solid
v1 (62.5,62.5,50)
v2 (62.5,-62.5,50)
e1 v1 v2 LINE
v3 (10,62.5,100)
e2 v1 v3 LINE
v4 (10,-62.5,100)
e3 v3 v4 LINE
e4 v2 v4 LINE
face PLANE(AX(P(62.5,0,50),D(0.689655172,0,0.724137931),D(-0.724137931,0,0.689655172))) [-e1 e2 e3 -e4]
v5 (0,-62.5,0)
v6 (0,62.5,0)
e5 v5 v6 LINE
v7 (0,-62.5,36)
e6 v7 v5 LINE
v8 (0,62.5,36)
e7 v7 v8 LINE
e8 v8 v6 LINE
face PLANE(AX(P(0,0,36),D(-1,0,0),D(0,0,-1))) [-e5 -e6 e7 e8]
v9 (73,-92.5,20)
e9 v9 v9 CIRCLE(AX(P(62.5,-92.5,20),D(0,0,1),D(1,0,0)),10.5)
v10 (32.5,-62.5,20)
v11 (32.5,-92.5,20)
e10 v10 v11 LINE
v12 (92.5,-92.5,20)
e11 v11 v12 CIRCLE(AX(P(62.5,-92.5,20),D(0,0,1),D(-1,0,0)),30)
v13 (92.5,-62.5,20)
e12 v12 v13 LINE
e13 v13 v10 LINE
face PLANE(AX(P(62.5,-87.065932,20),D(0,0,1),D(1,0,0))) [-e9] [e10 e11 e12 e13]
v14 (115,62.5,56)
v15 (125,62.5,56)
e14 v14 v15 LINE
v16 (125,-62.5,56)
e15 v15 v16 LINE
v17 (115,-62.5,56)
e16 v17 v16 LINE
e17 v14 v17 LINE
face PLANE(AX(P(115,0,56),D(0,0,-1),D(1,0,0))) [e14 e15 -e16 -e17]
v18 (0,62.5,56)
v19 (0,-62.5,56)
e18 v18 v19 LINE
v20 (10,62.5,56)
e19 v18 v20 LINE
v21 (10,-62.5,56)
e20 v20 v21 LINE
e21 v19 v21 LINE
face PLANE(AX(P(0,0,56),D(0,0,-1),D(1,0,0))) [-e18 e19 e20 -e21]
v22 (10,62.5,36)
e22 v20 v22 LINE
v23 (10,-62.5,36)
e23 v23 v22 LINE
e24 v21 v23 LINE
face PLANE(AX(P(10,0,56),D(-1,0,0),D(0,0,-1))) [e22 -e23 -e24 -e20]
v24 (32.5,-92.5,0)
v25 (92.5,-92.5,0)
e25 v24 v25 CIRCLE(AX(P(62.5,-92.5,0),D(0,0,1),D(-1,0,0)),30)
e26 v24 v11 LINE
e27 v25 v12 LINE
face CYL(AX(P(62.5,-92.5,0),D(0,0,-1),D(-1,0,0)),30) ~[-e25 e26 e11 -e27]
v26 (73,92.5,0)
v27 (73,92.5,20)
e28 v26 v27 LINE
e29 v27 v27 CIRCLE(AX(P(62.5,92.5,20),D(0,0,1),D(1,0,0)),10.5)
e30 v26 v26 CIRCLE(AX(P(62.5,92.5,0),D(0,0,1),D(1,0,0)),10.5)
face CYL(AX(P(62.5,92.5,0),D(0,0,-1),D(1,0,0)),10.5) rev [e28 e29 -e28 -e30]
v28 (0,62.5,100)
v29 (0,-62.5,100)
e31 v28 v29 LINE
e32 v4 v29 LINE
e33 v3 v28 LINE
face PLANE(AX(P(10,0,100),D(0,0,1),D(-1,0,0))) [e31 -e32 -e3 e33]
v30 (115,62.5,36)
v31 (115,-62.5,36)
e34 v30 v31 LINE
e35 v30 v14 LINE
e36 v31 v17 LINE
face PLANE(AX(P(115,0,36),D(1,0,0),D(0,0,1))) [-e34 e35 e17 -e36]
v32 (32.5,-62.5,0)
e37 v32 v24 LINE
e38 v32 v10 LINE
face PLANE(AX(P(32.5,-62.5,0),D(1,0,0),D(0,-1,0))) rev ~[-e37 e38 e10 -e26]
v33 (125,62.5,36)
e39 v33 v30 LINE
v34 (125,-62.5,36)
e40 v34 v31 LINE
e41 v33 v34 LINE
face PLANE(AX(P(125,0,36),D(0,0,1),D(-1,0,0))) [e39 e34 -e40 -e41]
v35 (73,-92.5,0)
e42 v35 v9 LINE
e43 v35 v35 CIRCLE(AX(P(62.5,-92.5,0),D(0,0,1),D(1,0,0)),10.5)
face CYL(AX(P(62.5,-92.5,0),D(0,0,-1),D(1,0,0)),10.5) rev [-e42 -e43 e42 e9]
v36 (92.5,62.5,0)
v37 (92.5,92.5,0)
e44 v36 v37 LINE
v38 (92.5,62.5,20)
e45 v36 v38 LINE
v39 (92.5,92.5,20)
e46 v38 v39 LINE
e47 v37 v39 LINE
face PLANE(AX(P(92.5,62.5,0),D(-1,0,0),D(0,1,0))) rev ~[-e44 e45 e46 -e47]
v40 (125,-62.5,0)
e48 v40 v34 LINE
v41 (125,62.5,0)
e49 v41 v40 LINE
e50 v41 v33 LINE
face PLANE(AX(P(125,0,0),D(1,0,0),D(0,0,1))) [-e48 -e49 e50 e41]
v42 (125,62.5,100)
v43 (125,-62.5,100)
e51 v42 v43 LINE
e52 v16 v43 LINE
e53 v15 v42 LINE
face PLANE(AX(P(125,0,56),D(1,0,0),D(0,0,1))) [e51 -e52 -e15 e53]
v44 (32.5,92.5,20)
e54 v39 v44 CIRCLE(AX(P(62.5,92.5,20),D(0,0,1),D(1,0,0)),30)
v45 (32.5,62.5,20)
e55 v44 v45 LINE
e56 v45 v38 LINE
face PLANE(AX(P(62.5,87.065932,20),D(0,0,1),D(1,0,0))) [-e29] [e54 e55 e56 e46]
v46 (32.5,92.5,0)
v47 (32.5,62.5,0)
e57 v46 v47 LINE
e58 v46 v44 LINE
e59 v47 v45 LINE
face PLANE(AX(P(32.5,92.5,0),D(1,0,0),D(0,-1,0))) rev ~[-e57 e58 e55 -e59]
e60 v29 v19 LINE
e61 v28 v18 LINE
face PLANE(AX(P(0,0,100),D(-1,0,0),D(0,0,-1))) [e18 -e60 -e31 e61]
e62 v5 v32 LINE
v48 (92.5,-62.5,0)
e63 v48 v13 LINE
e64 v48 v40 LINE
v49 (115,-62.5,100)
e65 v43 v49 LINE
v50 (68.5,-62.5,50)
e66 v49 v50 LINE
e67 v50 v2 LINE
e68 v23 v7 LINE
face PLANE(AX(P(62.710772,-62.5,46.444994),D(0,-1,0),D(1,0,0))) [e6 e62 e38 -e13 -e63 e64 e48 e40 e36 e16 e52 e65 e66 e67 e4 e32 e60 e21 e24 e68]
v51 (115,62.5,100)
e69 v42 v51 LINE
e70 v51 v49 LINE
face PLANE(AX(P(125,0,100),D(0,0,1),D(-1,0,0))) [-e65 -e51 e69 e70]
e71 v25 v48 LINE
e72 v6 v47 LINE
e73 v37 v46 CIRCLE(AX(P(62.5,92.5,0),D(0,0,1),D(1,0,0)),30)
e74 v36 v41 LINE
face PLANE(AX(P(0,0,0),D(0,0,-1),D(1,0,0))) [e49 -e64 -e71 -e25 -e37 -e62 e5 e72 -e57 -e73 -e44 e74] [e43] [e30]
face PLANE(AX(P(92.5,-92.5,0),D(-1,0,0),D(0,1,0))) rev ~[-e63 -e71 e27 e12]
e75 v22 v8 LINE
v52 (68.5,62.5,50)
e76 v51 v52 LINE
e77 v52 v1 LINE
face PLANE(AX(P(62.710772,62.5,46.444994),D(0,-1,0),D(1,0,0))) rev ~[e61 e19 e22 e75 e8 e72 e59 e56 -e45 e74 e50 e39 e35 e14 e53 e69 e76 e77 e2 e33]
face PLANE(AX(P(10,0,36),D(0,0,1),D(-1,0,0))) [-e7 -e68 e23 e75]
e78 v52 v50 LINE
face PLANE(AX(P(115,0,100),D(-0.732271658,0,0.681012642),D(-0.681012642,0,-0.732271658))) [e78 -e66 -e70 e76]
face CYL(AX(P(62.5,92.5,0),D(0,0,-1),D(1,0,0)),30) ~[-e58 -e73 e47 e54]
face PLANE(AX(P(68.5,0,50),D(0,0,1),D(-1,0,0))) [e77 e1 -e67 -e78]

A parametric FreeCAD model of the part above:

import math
import FreeCAD as App
import Part
import Sketcher
from FreeCAD import Vector
Q = App.Units.Quantity

doc = App.newDocument("Part")
body = doc.addObject("PartDesign::Body", "Body")

sketch1 = body.newObject("Sketcher::SketchObject", "Sketch")
sketch1.AttachmentSupport = (doc.getObject("XZ_Plane"), [""])
sketch1.MapMode = "FlatFace"
sketch1.addGeometry([
    Part.LineSegment(Vector(0, 0, 0), Vector(125, 0, 0)),
    Part.LineSegment(Vector(125, 0, 0), Vector(125, 36, 0)),
    Part.LineSegment(Vector(125, 36, 0), Vector(115, 36, 0)),
    Part.LineSegment(Vector(115, 36, 0), Vector(115, 56, 0)),
    Part.LineSegment(Vector(115, 56, 0), Vector(125, 56, 0)),
    Part.LineSegment(Vector(125, 56, 0), Vector(125, 100, 0)),
    Part.LineSegment(Vector(125, 100, 0), Vector(115, 100, 0)),
    Part.LineSegment(Vector(115, 100, 0), Vector(68, 50, 0)),
    Part.LineSegment(Vector(68, 50, 0), Vector(62, 50, 0)),
    Part.LineSegment(Vector(62, 50, 0), Vector(10, 100, 0)),
    Part.LineSegment(Vector(10, 100, 0), Vector(0, 100, 0)),
    Part.LineSegment(Vector(0, 100, 0), Vector(0, 56, 0)),
    Part.LineSegment(Vector(0, 56, 0), Vector(10, 56, 0)),
    Part.LineSegment(Vector(10, 56, 0), Vector(10, 36, 0)),
    Part.LineSegment(Vector(10, 36, 0), Vector(0, 36, 0)),
    Part.LineSegment(Vector(0, 36, 0), Vector(0, 0, 0)),
], False)
sketch1.addConstraint([
    Sketcher.Constraint("Coincident", 0, 2, 1, 1),
    Sketcher.Constraint("Coincident", 1, 2, 2, 1),
    Sketcher.Constraint("Coincident", 2, 2, 3, 1),
    Sketcher.Constraint("Coincident", 3, 2, 4, 1),
    Sketcher.Constraint("Coincident", 4, 2, 5, 1),
    Sketcher.Constraint("Coincident", 5, 2, 6, 1),
    Sketcher.Constraint("Coincident", 6, 2, 7, 1),
    Sketcher.Constraint("Coincident", 7, 2, 8, 1),
    Sketcher.Constraint("Coincident", 8, 2, 9, 1),
    Sketcher.Constraint("Coincident", 9, 2, 10, 1),
    Sketcher.Constraint("Coincident", 10, 2, 11, 1),
    Sketcher.Constraint("Coincident", 11, 2, 12, 1),
    Sketcher.Constraint("Coincident", 12, 2, 13, 1),
    Sketcher.Constraint("Coincident", 13, 2, 14, 1),
    Sketcher.Constraint("Coincident", 14, 2, 15, 1),
    Sketcher.Constraint("Coincident", 15, 2, 0, 1),
    Sketcher.Constraint("Horizontal", 0),
    Sketcher.Constraint("Vertical", 1),
    Sketcher.Constraint("Horizontal", 2),
    Sketcher.Constraint("Vertical", 3),
    Sketcher.Constraint("Horizontal", 4),
    Sketcher.Constraint("Vertical", 5),
    Sketcher.Constraint("Horizontal", 6),
    Sketcher.Constraint("Horizontal", 8),
    Sketcher.Constraint("Horizontal", 10),
    Sketcher.Constraint("Vertical", 11),
    Sketcher.Constraint("Horizontal", 12),
    Sketcher.Constraint("Vertical", 13),
    Sketcher.Constraint("Horizontal", 14),
    Sketcher.Constraint("Vertical", 15),
    Sketcher.Constraint("Coincident", 15, 2, -1, 1),
    Sketcher.Constraint("PointOnObject", 10, 2, -2),
    Sketcher.Constraint("Horizontal", 6, 2, 9, 2),
    Sketcher.Constraint("Horizontal", 4, 2, 11, 2),
    Sketcher.Constraint("Horizontal", 2, 2, 13, 2),
    Sketcher.Constraint("Vertical", 1, 2, 4, 2),
    Sketcher.Constraint("Vertical", 3, 2, 6, 2),
    Sketcher.Constraint("Vertical", 9, 2, 12, 2),
    Sketcher.Constraint("Equal", 6, 10),
    Sketcher.Constraint("DistanceX", 0, 1, 0, 2, Q("125 mm")),
    Sketcher.Constraint("DistanceX", 2, 2, 2, 1, Q("10 mm")),
    Sketcher.Constraint("DistanceX", 8, 2, 8, 1, Q("6 mm")),
    Sketcher.Constraint("DistanceY", 1, 1, 1, 2, Q("36 mm")),
    Sketcher.Constraint("DistanceY", 3, 1, 3, 2, Q("20 mm")),
    Sketcher.Constraint("DistanceY", 5, 1, 5, 2, Q("44 mm")),
    Sketcher.Constraint("DistanceY", -1, 1, 7, 2, Q("50 mm")),
    Sketcher.Constraint("Distance", 9, Q("72.5 mm")),
])
pad1 = body.newObject("PartDesign::Pad", "Pad")
pad1.Profile = sketch1
pad1.Length = 125
pad1.Midplane = True

sketch2 = body.newObject("Sketcher::SketchObject", "Sketch001")
sketch2.AttachmentSupport = (doc.getObject("XY_Plane"), [""])
sketch2.MapMode = "FlatFace"
sketch2.addGeometry([
    Part.LineSegment(Vector(32, -62, 0), Vector(32, -92, 0)),
    Part.ArcOfCircle(Part.Circle(Vector(62, -92, 0), Vector(0, 0, 1), 30), math.radians(180), math.radians(360)),
    Part.LineSegment(Vector(92, -92, 0), Vector(92, -62, 0)),
    Part.LineSegment(Vector(92, -62, 0), Vector(32, -62, 0)),
    Part.Circle(Vector(62, -92, 0), Vector(0, 0, 1), 10),
    Part.LineSegment(Vector(32, 92, 0), Vector(32, 62, 0)),
    Part.LineSegment(Vector(32, 62, 0), Vector(92, 62, 0)),
    Part.LineSegment(Vector(92, 62, 0), Vector(92, 92, 0)),
    Part.ArcOfCircle(Part.Circle(Vector(62, 92, 0), Vector(0, 0, 1), 30), math.radians(0), math.radians(180)),
    Part.Circle(Vector(62, 92, 0), Vector(0, 0, 1), 10),
], False)
sketch2.addConstraint([
    Sketcher.Constraint("Tangent", 0, 2, 1, 1),
    Sketcher.Constraint("Tangent", 1, 2, 2, 1),
    Sketcher.Constraint("Coincident", 2, 2, 3, 1),
    Sketcher.Constraint("Coincident", 3, 2, 0, 1),
    Sketcher.Constraint("Coincident", 5, 2, 6, 1),
    Sketcher.Constraint("Coincident", 6, 2, 7, 1),
    Sketcher.Constraint("Tangent", 7, 2, 8, 1),
    Sketcher.Constraint("Tangent", 8, 2, 5, 1),
    Sketcher.Constraint("Vertical", 0),
    Sketcher.Constraint("Vertical", 2),
    Sketcher.Constraint("Horizontal", 3),
    Sketcher.Constraint("Vertical", 5),
    Sketcher.Constraint("Horizontal", 6),
    Sketcher.Constraint("Vertical", 7),
    Sketcher.Constraint("Coincident", 4, 3, 1, 3),
    Sketcher.Constraint("Coincident", 9, 3, 8, 3),
    Sketcher.Constraint("Equal", 1, 8),
    Sketcher.Constraint("Equal", 4, 9),
    Sketcher.Constraint("Symmetric", 1, 3, 8, 3, -1),
    Sketcher.Constraint("Equal", 2, 5),
    Sketcher.Constraint("Diameter", 4, Q("21 mm")),
    Sketcher.Constraint("Radius", 1, Q("30 mm")),
    Sketcher.Constraint("DistanceY", 0, 2, 0, 1, Q("30 mm")),
    Sketcher.Constraint("DistanceY", 1, 3, 8, 3, Q("185 mm")),
    Sketcher.Constraint("DistanceX", -1, 1, 1, 3, Q("62.5 mm")),
])
pad2 = body.newObject("PartDesign::Pad", "Pad001")
pad2.Profile = sketch2
pad2.Length = 20

doc.recompute()
